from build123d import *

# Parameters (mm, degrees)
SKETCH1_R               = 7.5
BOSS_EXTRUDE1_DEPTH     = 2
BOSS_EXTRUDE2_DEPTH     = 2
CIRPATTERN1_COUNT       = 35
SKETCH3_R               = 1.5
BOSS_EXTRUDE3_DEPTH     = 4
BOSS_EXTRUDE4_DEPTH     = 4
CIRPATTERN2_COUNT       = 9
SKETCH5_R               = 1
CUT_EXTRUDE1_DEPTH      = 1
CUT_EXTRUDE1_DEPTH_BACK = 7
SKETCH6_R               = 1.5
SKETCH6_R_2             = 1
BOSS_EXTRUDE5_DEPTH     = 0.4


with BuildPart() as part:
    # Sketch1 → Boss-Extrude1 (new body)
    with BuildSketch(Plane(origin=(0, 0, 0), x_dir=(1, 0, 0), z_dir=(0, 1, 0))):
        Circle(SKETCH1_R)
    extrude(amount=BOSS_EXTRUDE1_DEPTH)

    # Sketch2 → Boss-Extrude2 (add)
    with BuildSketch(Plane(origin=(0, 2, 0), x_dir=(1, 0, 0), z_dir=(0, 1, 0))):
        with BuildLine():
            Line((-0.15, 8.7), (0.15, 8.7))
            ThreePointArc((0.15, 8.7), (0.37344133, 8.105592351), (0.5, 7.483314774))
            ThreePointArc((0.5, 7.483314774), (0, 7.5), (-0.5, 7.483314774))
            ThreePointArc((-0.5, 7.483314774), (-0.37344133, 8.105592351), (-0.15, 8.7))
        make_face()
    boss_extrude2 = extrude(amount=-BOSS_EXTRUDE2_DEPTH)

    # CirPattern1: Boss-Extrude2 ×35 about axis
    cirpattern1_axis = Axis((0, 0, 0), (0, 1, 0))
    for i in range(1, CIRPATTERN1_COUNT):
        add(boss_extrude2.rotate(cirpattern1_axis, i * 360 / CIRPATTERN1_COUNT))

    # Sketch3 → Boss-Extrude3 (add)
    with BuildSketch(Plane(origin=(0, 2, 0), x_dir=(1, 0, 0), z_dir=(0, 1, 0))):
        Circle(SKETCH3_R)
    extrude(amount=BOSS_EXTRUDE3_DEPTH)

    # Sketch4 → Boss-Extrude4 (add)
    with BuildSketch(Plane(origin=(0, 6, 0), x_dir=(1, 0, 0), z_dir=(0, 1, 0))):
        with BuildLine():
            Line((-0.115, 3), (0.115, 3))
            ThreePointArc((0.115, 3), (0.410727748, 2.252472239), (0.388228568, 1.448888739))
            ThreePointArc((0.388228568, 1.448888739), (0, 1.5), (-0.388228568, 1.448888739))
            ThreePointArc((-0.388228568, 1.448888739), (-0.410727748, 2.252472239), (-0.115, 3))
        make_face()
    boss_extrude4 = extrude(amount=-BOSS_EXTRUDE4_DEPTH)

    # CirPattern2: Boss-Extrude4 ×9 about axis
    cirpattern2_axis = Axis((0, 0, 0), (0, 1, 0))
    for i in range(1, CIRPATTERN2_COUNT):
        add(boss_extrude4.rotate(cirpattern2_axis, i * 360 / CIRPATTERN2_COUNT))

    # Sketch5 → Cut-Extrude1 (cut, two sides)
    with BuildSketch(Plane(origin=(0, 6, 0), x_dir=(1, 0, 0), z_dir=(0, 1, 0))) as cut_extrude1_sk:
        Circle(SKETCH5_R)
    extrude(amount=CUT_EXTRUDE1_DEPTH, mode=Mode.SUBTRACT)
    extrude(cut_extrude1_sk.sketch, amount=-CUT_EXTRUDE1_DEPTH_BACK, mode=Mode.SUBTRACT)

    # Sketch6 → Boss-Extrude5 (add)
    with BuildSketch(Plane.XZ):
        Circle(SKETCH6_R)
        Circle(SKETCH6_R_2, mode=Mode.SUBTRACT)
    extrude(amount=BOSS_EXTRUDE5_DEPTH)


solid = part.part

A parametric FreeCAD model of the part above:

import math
import FreeCAD as App
import Part
import Sketcher
from FreeCAD import Vector
Q = App.Units.Quantity

doc = App.newDocument("Part")
body = doc.addObject("PartDesign::Body", "Body")

# Sketch on XZ plane
sketch1 = body.newObject("Sketcher::SketchObject", "Sketch")
sketch1.AttachmentSupport = (doc.getObject("XZ_Plane"), [""])
sketch1.MapMode = "FlatFace"
sketch1.addGeometry(Part.Circle(Vector(0, 0, 0), Vector(0, 0, 1), 7.5), False)
sketch1.addConstraint([
    Sketcher.Constraint("Coincident", 0, 3, -1, 1),
    Sketcher.Constraint("Diameter", 0, Q("15 mm")),
])
pad1 = body.newObject("PartDesign::Pad", "Pad")
pad1.Profile = sketch1
pad1.Length = 2
pad1.Reversed = True

# Sketch on XZ plane
sketch2 = body.newObject("Sketcher::SketchObject", "Sketch001")
sketch2.AttachmentSupport = (doc.getObject("XZ_Plane"), [""])
sketch2.MapMode = "FlatFace"
sketch2.AttachmentOffset = App.Placement(Vector(0, 0, -2), App.Rotation())
sketch2.addGeometry([
    Part.LineSegment(Vector(0.15, -8.7, 0), Vector(-0.15, -8.7, 0)),
    Part.ArcOfCircle(Part.Circle(Vector(3.470666, -6.99977, 0), Vector(0, 0, 1), 4), math.radians(-173.056754), math.radians(-154.845701)),
    Part.ArcOfCircle(Part.Circle(Vector(0, 0, 0), Vector(0, 0, 1), 7.5), math.radians(-93.822554), math.radians(-86.177446)),
    Part.ArcOfCircle(Part.Circle(Vector(-3.470666, -6.99977, 0), Vector(0, 0, 1), 4), math.radians(-25.154299), math.radians(-6.943246)),
], False)
sketch2.addConstraint([
    Sketcher.Constraint("Coincident", 0, 2, 1, 2),
    Sketcher.Constraint("Coincident", 1, 1, 2, 1),
    Sketcher.Constraint("Coincident", 2, 2, 3, 2),
    Sketcher.Constraint("Coincident", 3, 1, 0, 1),
    Sketcher.Constraint("Horizontal", 0),
    Sketcher.Constraint("Coincident", 2, 3, -1, 1),
    Sketcher.Constraint("Equal", 1, 3),
    Sketcher.Constraint("Symmetric", 1, 3, 3, 3, -2),
    Sketcher.Constraint("Radius", 1, Q("4 mm")),
    Sketcher.Constraint("Radius", 2, Q("7.5 mm")),
    Sketcher.Constraint("DistanceX", 0, 2, 0, 1, Q("0.3 mm")),
    Sketcher.Constraint("DistanceX", 1, 1, 2, 2, Q("1 mm")),
    Sketcher.Constraint("DistanceY", 0, 2, -1, 1, Q("8.7 mm")),
])
pad2 = body.newObject("PartDesign::Pad", "Pad001")
pad2.Profile = sketch2
pad2.Length = 2
doc.recompute()

polarpattern = body.newObject("PartDesign::PolarPattern", "PolarPattern")
polarpattern.Originals = [pad2]
polarpattern.Axis = (doc.getObject("Y_Axis"), [""])
polarpattern.Angle = 360
polarpattern.Occurrences = 35
body.Tip = polarpattern

# Sketch on XZ plane
sketch3 = body.newObject("Sketcher::SketchObject", "Sketch002")
sketch3.AttachmentSupport = (doc.getObject("XZ_Plane"), [""])
sketch3.MapMode = "FlatFace"
sketch3.AttachmentOffset = App.Placement(Vector(0, 0, -2), App.Rotation())
sketch3.addGeometry(Part.Circle(Vector(0, 0, 0), Vector(0, 0, 1), 1.5), False)
sketch3.addConstraint([
    Sketcher.Constraint("Coincident", 0, 3, -1, 1),
    Sketcher.Constraint("Diameter", 0, Q("3 mm")),
])
pad3 = body.newObject("PartDesign::Pad", "Pad002")
pad3.Profile = sketch3
pad3.Length = 4
pad3.Reversed = True

# Sketch on XZ plane
sketch4 = body.newObject("Sketcher::SketchObject", "Sketch003")
sketch4.AttachmentSupport = (doc.getObject("XZ_Plane"), [""])
sketch4.MapMode = "FlatFace"
sketch4.AttachmentOffset = App.Placement(Vector(0, 0, -6), App.Rotation())
sketch4.addGeometry([
    Part.LineSegment(Vector(0.115, -3, 0), Vector(-0.115, -3, 0)),
    Part.ArcOfCircle(Part.Circle(Vector(1.558947, -1.905514, 0), Vector(0, 0, 1), 2), math.radians(166.802263), math.radians(213.178091)),
    Part.ArcOfCircle(Part.Circle(Vector(0, 0, 0), Vector(0, 0, 1), 1.5), math.radians(-105), math.radians(-75)),
    Part.ArcOfCircle(Part.Circle(Vector(-1.558947, -1.905514, 0), Vector(0, 0, 1), 2), math.radians(-33.178091), math.radians(13.197737)),
], False)
sketch4.addConstraint([
    Sketcher.Constraint("Coincident", 0, 2, 1, 2),
    Sketcher.Constraint("Coincident", 1, 1, 2, 1),
    Sketcher.Constraint("Coincident", 2, 2, 3, 2),
    Sketcher.Constraint("Coincident", 3, 1, 0, 1),
    Sketcher.Constraint("Horizontal", 0),
    Sketcher.Constraint("Coincident", 2, 3, -1, 1),
    Sketcher.Constraint("Equal", 1, 3),
    Sketcher.Constraint("Symmetric", 1, 3, 3, 3, -2),
    Sketcher.Constraint("Radius", 1, Q("2 mm")),
    Sketcher.Constraint("Radius", 2, Q("1.5 mm")),
    Sketcher.Constraint("DistanceY", 0, 2, -1, 1, Q("3 mm")),
    Sketcher.Constraint("DistanceX", 0, 2, 0, 1, Q("0.23 mm")),
    Sketcher.Constraint("DistanceX", 1, 1, -1, 1, Q("0.388229 mm")),
])
pad4 = body.newObject("PartDesign::Pad", "Pad003")
pad4.Profile = sketch4
pad4.Length = 4
doc.recompute()

polarpattern2 = body.newObject("PartDesign::PolarPattern", "PolarPattern001")
polarpattern2.Originals = [pad4]
polarpattern2.Axis = (doc.getObject("Y_Axis"), [""])
polarpattern2.Angle = 360
polarpattern2.Occurrences = 9
body.Tip = polarpattern2

# Sketch on XZ plane
sketch5 = body.newObject("Sketcher::SketchObject", "Sketch004")
sketch5.AttachmentSupport = (doc.getObject("XZ_Plane"), [""])
sketch5.MapMode = "FlatFace"
sketch5.AttachmentOffset = App.Placement(Vector(0, 0, -6), App.Rotation())
sketch5.addGeometry(Part.Circle(Vector(0, 0, 0), Vector(0, 0, 1), 1), False)
sketch5.addConstraint([
    Sketcher.Constraint("Coincident", 0, 3, -1, 1),
    Sketcher.Constraint("Diameter", 0, Q("2 mm")),
])
pocket1 = body.newObject("PartDesign::Pocket", "Pocket")
pocket1.Profile = sketch5
pocket1.Type = "ThroughAll"
pocket1.Midplane = True

# Sketch on XZ plane
sketch6 = body.newObject("Sketcher::SketchObject", "Sketch005")
sketch6.AttachmentSupport = (doc.getObject("XZ_Plane"), [""])
sketch6.MapMode = "FlatFace"
sketch6.addGeometry([
    Part.Circle(Vector(0, 0, 0), Vector(0, 0, 1), 1.5),
    Part.Circle(Vector(0, 0, 0), Vector(0, 0, 1), 1),
], False)
sketch6.addConstraint([
    Sketcher.Constraint("Coincident", 0, 3, -1, 1),
    Sketcher.Constraint("Coincident", 1, 3, -1, 1),
    Sketcher.Constraint("Diameter", 0, Q("3 mm")),
    Sketcher.Constraint("Diameter", 1, Q("2 mm")),
])
pad5 = body.newObject("PartDesign::Pad", "Pad004")
pad5.Profile = sketch6
pad5.Length = 0.4

doc.recompute()
